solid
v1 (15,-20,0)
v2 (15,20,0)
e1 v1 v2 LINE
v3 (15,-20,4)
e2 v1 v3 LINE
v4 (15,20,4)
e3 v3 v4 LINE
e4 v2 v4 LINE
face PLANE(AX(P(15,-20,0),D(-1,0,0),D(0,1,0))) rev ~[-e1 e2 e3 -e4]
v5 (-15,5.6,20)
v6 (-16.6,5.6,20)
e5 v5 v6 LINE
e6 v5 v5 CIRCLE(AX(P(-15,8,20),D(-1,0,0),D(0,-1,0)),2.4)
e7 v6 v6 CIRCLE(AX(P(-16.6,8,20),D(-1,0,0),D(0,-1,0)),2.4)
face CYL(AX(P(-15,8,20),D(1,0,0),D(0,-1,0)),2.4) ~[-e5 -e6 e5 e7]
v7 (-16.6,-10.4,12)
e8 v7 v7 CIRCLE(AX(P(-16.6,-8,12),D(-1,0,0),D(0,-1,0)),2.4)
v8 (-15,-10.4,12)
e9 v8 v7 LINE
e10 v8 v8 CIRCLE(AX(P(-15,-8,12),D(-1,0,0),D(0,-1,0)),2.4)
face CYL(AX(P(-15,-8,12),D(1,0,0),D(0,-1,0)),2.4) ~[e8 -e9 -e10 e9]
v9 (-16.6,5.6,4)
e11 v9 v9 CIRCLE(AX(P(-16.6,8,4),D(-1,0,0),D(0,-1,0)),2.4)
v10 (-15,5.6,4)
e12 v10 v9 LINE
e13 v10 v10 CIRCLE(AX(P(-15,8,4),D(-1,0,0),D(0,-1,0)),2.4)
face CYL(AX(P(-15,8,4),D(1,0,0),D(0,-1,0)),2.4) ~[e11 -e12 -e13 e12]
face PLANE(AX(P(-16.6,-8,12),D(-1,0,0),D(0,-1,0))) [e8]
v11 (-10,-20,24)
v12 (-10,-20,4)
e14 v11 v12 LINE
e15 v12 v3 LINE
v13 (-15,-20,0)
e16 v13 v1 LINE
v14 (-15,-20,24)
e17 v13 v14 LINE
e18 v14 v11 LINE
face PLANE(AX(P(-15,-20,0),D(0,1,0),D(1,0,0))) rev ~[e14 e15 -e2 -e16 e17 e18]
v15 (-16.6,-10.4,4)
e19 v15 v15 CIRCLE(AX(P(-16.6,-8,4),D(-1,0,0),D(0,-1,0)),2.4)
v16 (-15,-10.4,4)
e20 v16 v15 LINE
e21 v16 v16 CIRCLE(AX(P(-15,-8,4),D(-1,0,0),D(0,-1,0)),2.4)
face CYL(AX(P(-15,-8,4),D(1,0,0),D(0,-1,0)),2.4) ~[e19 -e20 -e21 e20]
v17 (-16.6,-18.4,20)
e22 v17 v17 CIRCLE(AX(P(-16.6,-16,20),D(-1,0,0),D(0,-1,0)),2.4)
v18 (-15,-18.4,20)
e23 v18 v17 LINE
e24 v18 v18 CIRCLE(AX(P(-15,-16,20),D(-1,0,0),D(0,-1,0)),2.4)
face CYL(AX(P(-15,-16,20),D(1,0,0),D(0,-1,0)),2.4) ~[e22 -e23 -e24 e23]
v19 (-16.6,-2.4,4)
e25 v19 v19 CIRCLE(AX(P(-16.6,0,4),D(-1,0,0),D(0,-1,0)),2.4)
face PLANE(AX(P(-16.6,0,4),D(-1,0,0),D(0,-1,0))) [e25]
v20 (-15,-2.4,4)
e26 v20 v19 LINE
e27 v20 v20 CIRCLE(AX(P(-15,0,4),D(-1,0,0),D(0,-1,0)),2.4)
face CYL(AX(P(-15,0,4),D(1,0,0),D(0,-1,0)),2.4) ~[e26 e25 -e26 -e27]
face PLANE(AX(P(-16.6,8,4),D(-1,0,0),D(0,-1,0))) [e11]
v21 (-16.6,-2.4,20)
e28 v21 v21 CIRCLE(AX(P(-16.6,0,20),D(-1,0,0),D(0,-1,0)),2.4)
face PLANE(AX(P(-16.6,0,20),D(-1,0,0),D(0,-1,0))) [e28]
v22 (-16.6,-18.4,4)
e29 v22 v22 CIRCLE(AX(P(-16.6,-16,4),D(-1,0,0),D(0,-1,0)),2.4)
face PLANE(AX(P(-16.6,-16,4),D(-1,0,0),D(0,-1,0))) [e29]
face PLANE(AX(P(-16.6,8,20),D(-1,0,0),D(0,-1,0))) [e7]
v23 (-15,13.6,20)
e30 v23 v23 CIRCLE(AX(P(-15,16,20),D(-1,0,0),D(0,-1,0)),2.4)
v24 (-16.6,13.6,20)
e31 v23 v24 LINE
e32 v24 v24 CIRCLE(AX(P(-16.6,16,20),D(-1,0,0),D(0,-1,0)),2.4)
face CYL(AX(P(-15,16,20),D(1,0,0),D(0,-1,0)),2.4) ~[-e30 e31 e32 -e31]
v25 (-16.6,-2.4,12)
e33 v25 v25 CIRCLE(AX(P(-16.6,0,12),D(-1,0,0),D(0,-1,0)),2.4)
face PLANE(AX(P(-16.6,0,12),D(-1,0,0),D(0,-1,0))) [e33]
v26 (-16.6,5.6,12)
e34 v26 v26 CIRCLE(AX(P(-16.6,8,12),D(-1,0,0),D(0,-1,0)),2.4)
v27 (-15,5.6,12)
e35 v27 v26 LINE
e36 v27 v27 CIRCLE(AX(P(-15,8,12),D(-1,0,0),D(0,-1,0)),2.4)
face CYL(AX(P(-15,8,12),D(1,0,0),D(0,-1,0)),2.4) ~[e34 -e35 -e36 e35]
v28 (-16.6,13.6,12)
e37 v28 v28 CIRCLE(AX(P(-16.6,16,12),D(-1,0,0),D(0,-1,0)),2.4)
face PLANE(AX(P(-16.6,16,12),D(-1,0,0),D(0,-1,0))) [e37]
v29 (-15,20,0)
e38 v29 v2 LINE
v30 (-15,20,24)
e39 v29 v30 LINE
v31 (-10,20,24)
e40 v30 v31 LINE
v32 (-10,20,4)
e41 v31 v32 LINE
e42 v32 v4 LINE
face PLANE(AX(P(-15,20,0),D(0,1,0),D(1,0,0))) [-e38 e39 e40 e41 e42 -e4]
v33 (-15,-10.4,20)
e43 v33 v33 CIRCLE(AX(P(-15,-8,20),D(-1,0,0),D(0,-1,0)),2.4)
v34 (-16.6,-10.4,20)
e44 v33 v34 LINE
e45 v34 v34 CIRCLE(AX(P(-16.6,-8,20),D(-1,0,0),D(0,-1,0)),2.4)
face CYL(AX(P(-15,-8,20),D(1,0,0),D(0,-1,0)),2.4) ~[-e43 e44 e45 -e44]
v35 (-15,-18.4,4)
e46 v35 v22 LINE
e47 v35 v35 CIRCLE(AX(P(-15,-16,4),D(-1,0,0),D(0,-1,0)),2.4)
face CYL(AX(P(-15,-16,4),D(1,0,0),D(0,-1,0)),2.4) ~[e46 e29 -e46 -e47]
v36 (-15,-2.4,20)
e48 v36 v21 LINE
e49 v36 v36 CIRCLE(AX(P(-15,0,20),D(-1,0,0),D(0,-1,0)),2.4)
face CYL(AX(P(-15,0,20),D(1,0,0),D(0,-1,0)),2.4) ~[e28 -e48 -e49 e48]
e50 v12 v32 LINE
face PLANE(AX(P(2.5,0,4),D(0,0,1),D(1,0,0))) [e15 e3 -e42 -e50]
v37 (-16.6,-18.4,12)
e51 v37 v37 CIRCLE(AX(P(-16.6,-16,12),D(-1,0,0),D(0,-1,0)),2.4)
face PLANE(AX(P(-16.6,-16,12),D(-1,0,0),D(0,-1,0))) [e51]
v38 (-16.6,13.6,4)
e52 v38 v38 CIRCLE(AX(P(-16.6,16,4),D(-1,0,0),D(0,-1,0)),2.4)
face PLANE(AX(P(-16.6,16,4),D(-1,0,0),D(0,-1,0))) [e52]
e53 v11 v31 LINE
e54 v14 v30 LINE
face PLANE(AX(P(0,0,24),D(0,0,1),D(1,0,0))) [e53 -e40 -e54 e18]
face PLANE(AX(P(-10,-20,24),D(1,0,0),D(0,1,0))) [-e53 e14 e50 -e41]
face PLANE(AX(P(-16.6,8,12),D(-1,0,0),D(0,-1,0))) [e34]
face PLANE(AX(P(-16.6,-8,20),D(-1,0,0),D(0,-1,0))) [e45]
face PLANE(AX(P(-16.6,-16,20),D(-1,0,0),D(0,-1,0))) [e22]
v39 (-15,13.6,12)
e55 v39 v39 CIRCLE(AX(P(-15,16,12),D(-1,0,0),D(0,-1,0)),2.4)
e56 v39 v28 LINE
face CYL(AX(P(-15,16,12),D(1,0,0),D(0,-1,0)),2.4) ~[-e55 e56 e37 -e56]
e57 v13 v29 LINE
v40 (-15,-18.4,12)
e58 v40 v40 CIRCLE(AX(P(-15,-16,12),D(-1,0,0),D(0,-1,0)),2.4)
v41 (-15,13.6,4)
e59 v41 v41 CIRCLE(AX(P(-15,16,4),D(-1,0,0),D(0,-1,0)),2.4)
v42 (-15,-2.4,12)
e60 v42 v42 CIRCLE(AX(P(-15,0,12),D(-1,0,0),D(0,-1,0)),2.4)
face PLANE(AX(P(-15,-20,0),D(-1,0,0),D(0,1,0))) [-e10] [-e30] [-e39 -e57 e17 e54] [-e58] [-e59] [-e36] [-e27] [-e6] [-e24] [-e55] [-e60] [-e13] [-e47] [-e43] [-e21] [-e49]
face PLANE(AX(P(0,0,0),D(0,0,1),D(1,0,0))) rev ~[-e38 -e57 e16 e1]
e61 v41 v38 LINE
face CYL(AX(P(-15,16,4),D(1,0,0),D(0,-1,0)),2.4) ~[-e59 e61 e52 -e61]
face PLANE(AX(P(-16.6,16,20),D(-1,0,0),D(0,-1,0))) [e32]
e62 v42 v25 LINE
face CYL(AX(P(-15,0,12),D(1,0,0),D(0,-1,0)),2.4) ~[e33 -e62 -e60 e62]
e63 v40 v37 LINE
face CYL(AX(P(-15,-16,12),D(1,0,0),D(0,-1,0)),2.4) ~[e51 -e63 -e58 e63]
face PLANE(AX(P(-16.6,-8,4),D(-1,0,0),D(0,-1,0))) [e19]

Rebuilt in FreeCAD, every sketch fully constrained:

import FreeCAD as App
import Part
import Sketcher

V = App.Vector
Q = App.Units.Quantity


def add_polygon(sketch, points):
    """Adds a closed chain of lines whose ends are joined by coincident constraints."""
    first, n = sketch.GeometryCount, len(points)
    for a, b in zip(points, points[1:] + points[:1]):
        sketch.addGeometry(Part.LineSegment(App.Vector(*a, 0), App.Vector(*b, 0)), False)
    for i in range(n):
        sketch.addConstraint(Sketcher.Constraint("Coincident", first + i, 2, first + (i + 1) % n, 1))

doc = App.newDocument("Part")
body = doc.addObject("PartDesign::Body", "Body")

# Sketch on XY plane
sketch1 = body.newObject("Sketcher::SketchObject", "Sketch")
sketch1.AttachmentSupport = (doc.getObject("XY_Plane"), [""])
sketch1.MapMode = "FlatFace"
add_polygon(sketch1, [(-15, 20), (-15, -20), (15, -20), (15, 20)])  # lines 0-3
sketch1.addConstraint(Sketcher.Constraint("Vertical", 0))
sketch1.addConstraint(Sketcher.Constraint("Horizontal", 1))
sketch1.addConstraint(Sketcher.Constraint("Vertical", 2))
sketch1.addConstraint(Sketcher.Constraint("Horizontal", 3))
sketch1.addConstraint(Sketcher.Constraint("Symmetric", 0, 2, 2, 2, -1, 1))
sketch1.addConstraint(Sketcher.Constraint("DistanceX", 1, 1, 1, 2, Q("30 mm")))
sketch1.addConstraint(Sketcher.Constraint("DistanceY", 0, 2, 0, 1, Q("40 mm")))
pad1 = body.newObject("PartDesign::Pad", "Pad")
pad1.Profile = sketch1
pad1.Length = 24

# Sketch on XY plane
sketch2 = body.newObject("Sketcher::SketchObject", "Sketch001")
sketch2.AttachmentSupport = (doc.getObject("XY_Plane"), [""])
sketch2.MapMode = "FlatFace"
sketch2.AttachmentOffset = App.Placement(V(0, 0, 24), App.Rotation())
add_polygon(sketch2, [(-10, 20), (-10, -20), (15, -20), (15, 20)])  # lines 0-3
sketch2.addConstraint(Sketcher.Constraint("Vertical", 0))
sketch2.addConstraint(Sketcher.Constraint("Horizontal", 1))
sketch2.addConstraint(Sketcher.Constraint("Vertical", 2))
sketch2.addConstraint(Sketcher.Constraint("Horizontal", 3))
sketch2.addConstraint(Sketcher.Constraint("DistanceX", 1, 1, 1, 2, Q("25 mm")))
sketch2.addConstraint(Sketcher.Constraint("DistanceY", 0, 2, 0, 1, Q("40 mm")))
sketch2.addConstraint(Sketcher.Constraint("DistanceX", 0, 2, -1, 1, Q("10 mm")))
sketch2.addConstraint(Sketcher.Constraint("DistanceY", 0, 2, -1, 1, Q("20 mm")))
pocket1 = body.newObject("PartDesign::Pocket", "Pocket")
pocket1.Profile = sketch2
pocket1.Length = 20

# Sketch on YZ plane
sketch3 = body.newObject("Sketcher::SketchObject", "Sketch002")
sketch3.AttachmentSupport = (doc.getObject("YZ_Plane"), [""])
sketch3.MapMode = "FlatFace"
sketch3.AttachmentOffset = App.Placement(V(0, 0, -15), App.Rotation())
sketch3.addGeometry(Part.Circle(V(16, 4, 0), V(0, 0, 1), 2.4), False)
sketch3.addGeometry(Part.Circle(V(16, 12, 0), V(0, 0, 1), 2.4), False)
sketch3.addGeometry(Part.Circle(V(16, 20, 0), V(0, 0, 1), 2.4), False)
sketch3.addGeometry(Part.Circle(V(8, 4, 0), V(0, 0, 1), 2.4), False)
sketch3.addGeometry(Part.Circle(V(8, 12, 0), V(0, 0, 1), 2.4), False)
sketch3.addGeometry(Part.Circle(V(8, 20, 0), V(0, 0, 1), 2.4), False)
sketch3.addGeometry(Part.Circle(V(0, 4, 0), V(0, 0, 1), 2.4), False)
sketch3.addGeometry(Part.Circle(V(0, 12, 0), V(0, 0, 1), 2.4), False)
sketch3.addGeometry(Part.Circle(V(0, 20, 0), V(0, 0, 1), 2.4), False)
sketch3.addGeometry(Part.Circle(V(-8, 4, 0), V(0, 0, 1), 2.4), False)
sketch3.addGeometry(Part.Circle(V(-8, 12, 0), V(0, 0, 1), 2.4), False)
sketch3.addGeometry(Part.Circle(V(-8, 20, 0), V(0, 0, 1), 2.4), False)
sketch3.addGeometry(Part.Circle(V(-16, 4, 0), V(0, 0, 1), 2.4), False)
sketch3.addGeometry(Part.Circle(V(-16, 12, 0), V(0, 0, 1), 2.4), False)
sketch3.addGeometry(Part.Circle(V(-16, 20, 0), V(0, 0, 1), 2.4), False)
sketch3.addConstraint(Sketcher.Constraint("Equal", 0, 1))
sketch3.addConstraint(Sketcher.Constraint("Equal", 1, 2))
sketch3.addConstraint(Sketcher.Constraint("Equal", 2, 3))
sketch3.addConstraint(Sketcher.Constraint("Equal", 3, 4))
sketch3.addConstraint(Sketcher.Constraint("Equal", 4, 5))
sketch3.addConstraint(Sketcher.Constraint("Equal", 5, 6))
sketch3.addConstraint(Sketcher.Constraint("Equal", 6, 7))
sketch3.addConstraint(Sketcher.Constraint("Equal", 7, 8))
sketch3.addConstraint(Sketcher.Constraint("Equal", 8, 9))
sketch3.addConstraint(Sketcher.Constraint("Equal", 9, 10))
sketch3.addConstraint(Sketcher.Constraint("Equal", 10, 11))
sketch3.addConstraint(Sketcher.Constraint("Equal", 11, 12))
sketch3.addConstraint(Sketcher.Constraint("Equal", 12, 13))
sketch3.addConstraint(Sketcher.Constraint("Equal", 13, 14))
sketch3.addConstraint(Sketcher.Constraint("Symmetric", 3, 3, 9, 3, -2))
sketch3.addConstraint(Sketcher.Constraint("Symmetric", 4, 3, 10, 3, -2))
sketch3.addConstraint(Sketcher.Constraint("Symmetric", 5, 3, 11, 3, -2))
sketch3.addConstraint(Sketcher.Constraint("Symmetric", 0, 3, 12, 3, -2))
sketch3.addConstraint(Sketcher.Constraint("Symmetric", 1, 3, 13, 3, -2))
sketch3.addConstraint(Sketcher.Constraint("Symmetric", 2, 3, 14, 3, -2))
sketch3.addConstraint(Sketcher.Constraint("PointOnObject", 6, 3, -2))
sketch3.addConstraint(Sketcher.Constraint("PointOnObject", 7, 3, -2))
sketch3.addConstraint(Sketcher.Constraint("PointOnObject", 8, 3, -2))
sketch3.addConstraint(Sketcher.Constraint("Horizontal", 0, 3, 3, 3))
sketch3.addConstraint(Sketcher.Constraint("Horizontal", 1, 3, 4, 3))
sketch3.addConstraint(Sketcher.Constraint("Horizontal", 2, 3, 5, 3))
sketch3.addConstraint(Sketcher.Constraint("Horizontal", 3, 3, 6, 3))
sketch3.addConstraint(Sketcher.Constraint("Horizontal", 4, 3, 7, 3))
sketch3.addConstraint(Sketcher.Constraint("Horizontal", 5, 3, 8, 3))
sketch3.addConstraint(Sketcher.Constraint("Vertical", 0, 3, 1, 3))
sketch3.addConstraint(Sketcher.Constraint("Vertical", 1, 3, 2, 3))
sketch3.addConstraint(Sketcher.Constraint("Vertical", 3, 3, 4, 3))
sketch3.addConstraint(Sketcher.Constraint("Vertical", 4, 3, 5, 3))
sketch3.addConstraint(Sketcher.Constraint("Diameter", 0, Q("4.8 mm")))
sketch3.addConstraint(Sketcher.Constraint("DistanceX", -1, 1, 0, 3, Q("16 mm")))
sketch3.addConstraint(Sketcher.Constraint("DistanceY", -1, 1, 0, 3, Q("4 mm")))
sketch3.addConstraint(Sketcher.Constraint("DistanceY", -1, 1, 1, 3, Q("12 mm")))
sketch3.addConstraint(Sketcher.Constraint("DistanceY", -1, 1, 2, 3, Q("20 mm")))
sketch3.addConstraint(Sketcher.Constraint("DistanceX", -1, 1, 3, 3, Q("8 mm")))
pad2 = body.newObject("PartDesign::Pad", "Pad001")
pad2.Profile = sketch3
pad2.Length = 1.6
pad2.Reversed = True

doc.recompute()
